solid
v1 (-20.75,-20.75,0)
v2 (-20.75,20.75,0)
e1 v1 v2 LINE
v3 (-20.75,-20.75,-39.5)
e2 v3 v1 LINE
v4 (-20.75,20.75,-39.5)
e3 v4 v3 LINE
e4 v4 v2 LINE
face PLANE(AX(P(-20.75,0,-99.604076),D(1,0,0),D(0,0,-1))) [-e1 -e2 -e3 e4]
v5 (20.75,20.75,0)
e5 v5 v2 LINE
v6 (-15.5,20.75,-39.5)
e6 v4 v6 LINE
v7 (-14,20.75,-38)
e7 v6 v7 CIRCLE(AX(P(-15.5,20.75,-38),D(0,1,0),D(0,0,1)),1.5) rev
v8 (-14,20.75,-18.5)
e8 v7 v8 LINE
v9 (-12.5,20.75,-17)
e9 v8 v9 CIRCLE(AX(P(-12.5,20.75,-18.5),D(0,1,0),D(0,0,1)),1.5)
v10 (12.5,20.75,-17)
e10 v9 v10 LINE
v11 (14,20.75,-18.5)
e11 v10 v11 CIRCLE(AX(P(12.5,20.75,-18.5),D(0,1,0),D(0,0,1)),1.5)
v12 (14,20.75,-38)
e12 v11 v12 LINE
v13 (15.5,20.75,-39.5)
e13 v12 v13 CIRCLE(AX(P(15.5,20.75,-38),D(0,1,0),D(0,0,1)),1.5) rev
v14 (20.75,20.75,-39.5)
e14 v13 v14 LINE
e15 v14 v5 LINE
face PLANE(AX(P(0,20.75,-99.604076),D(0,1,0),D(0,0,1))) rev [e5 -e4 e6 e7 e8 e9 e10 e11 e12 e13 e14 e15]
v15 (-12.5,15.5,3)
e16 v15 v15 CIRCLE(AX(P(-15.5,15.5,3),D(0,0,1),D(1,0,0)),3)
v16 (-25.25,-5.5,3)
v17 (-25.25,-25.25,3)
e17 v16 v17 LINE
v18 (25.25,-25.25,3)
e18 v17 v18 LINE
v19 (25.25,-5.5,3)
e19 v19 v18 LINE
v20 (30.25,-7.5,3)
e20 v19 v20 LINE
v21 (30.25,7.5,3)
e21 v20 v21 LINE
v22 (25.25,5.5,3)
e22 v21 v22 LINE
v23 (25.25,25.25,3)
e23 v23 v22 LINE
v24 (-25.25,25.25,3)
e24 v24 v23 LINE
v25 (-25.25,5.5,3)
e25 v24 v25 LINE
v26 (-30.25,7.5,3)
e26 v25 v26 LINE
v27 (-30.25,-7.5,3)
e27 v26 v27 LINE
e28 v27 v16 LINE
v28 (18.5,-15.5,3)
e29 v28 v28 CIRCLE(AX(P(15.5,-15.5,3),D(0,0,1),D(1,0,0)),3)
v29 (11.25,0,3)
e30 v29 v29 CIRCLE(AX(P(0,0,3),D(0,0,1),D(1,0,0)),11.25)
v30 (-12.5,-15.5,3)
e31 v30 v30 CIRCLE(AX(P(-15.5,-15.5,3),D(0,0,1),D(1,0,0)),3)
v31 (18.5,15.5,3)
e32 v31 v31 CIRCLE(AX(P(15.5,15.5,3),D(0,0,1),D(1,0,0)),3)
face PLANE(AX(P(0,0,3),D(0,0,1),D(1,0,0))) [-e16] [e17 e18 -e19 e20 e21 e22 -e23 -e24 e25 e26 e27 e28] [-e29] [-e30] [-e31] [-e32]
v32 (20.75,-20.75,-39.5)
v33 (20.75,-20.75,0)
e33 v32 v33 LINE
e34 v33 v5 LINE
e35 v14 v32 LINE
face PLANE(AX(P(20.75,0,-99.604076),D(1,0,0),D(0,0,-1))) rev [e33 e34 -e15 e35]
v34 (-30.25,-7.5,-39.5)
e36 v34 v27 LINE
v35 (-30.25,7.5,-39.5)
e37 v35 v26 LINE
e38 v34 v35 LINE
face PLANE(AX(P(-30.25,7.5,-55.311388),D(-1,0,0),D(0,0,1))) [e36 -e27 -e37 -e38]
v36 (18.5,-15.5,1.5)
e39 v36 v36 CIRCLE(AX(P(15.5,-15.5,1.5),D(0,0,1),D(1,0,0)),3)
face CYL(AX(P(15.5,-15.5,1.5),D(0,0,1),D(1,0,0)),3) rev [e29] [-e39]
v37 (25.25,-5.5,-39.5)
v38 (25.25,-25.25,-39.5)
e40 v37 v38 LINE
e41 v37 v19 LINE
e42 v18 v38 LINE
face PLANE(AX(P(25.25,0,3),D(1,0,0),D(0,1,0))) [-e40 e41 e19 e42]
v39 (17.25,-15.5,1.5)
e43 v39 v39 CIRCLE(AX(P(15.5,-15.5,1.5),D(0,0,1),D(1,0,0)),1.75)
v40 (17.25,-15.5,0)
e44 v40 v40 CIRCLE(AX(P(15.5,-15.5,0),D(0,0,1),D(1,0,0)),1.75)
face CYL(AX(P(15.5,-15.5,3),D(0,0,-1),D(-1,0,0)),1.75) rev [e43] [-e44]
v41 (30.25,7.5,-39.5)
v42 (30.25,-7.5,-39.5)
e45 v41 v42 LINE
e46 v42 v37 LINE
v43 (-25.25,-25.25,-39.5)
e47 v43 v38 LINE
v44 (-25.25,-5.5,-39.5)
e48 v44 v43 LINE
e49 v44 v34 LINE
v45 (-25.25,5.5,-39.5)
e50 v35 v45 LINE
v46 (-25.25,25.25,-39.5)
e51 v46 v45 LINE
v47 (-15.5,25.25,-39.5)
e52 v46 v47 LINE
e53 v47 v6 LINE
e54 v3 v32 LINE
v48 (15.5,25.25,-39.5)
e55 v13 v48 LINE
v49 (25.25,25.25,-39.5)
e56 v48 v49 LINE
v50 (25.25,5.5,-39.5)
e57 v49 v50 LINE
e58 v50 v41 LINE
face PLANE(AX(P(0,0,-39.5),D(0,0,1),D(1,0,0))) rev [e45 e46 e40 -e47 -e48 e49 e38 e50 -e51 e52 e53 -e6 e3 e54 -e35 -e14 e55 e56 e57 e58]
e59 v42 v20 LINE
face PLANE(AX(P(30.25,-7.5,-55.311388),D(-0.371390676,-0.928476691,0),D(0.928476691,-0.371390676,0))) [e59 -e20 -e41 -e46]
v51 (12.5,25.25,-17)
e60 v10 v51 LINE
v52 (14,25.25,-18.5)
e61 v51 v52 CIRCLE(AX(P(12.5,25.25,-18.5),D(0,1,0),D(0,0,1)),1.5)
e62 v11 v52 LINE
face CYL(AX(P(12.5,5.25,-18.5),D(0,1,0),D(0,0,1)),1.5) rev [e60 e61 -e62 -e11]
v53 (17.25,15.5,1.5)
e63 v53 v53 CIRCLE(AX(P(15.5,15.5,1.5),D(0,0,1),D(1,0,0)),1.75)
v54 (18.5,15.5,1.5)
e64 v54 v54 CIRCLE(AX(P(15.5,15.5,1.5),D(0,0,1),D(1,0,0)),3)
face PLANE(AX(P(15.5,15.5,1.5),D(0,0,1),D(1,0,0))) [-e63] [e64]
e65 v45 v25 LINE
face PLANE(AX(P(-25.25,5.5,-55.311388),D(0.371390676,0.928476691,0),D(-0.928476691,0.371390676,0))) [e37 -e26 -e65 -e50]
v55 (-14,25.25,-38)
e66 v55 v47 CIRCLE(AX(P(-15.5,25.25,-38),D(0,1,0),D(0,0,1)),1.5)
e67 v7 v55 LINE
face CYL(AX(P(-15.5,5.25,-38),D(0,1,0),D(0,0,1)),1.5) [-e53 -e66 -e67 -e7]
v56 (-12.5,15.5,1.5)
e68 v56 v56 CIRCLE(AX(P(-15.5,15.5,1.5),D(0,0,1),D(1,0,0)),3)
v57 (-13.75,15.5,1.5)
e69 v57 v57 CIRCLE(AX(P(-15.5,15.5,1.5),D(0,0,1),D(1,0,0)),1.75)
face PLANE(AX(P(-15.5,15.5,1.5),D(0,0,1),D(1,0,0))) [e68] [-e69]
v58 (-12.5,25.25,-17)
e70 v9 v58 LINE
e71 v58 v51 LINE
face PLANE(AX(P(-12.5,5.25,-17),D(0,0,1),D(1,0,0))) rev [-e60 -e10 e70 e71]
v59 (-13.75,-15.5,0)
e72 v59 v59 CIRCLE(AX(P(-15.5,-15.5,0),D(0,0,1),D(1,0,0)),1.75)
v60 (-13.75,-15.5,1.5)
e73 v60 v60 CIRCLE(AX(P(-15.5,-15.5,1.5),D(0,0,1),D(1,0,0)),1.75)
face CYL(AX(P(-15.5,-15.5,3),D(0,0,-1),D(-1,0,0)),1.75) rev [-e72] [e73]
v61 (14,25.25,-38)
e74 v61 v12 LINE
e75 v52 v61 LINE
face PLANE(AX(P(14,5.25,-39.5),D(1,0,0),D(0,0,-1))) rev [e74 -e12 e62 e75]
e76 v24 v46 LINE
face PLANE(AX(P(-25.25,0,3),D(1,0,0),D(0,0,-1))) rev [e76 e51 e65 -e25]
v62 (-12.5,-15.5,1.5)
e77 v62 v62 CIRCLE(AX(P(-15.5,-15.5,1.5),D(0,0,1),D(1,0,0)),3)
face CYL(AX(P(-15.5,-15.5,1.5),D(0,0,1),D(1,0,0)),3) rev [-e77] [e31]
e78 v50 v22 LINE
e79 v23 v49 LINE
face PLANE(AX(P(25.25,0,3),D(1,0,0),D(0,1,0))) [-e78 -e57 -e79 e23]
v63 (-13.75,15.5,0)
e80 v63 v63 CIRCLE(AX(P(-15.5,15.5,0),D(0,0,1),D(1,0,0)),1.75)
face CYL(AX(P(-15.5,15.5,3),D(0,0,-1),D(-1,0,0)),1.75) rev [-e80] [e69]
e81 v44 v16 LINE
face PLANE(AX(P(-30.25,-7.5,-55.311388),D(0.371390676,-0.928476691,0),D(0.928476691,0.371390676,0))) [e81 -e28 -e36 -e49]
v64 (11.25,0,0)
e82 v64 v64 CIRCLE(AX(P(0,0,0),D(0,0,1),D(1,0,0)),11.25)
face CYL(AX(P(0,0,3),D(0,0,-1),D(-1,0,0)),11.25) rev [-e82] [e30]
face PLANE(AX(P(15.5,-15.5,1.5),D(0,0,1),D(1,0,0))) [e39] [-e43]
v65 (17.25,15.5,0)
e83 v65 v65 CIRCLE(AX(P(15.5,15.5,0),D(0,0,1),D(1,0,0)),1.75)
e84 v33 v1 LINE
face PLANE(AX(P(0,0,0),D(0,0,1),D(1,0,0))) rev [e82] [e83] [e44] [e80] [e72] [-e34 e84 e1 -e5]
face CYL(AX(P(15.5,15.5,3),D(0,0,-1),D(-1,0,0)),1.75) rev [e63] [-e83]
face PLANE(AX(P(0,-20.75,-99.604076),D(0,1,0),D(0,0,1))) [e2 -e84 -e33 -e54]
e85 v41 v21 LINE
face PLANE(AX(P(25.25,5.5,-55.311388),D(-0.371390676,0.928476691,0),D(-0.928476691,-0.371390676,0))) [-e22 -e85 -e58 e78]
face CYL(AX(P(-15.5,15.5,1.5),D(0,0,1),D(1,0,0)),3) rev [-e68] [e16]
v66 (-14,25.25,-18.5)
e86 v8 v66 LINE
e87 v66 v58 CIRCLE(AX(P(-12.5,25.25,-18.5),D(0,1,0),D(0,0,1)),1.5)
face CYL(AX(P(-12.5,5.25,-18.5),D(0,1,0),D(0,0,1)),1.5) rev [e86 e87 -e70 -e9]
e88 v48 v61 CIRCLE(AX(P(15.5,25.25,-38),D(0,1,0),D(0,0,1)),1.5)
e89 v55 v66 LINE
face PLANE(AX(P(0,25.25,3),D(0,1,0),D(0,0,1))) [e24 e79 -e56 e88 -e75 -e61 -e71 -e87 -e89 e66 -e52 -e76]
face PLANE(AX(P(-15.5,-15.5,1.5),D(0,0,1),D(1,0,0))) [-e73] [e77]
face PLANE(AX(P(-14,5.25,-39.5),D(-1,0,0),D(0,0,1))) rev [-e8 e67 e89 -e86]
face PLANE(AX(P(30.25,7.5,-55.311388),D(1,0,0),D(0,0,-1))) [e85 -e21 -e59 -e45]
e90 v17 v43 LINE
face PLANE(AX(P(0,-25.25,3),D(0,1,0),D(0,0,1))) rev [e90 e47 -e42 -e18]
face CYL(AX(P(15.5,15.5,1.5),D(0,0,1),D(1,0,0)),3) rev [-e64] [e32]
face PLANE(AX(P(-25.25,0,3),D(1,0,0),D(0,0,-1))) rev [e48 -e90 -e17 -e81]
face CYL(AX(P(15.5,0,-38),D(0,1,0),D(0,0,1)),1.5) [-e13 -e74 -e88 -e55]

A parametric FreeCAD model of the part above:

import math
import FreeCAD as App
import Part
import Sketcher


def edges_at(feature, points):
    """Names of the edges that pass closest to the given points."""
    edges = feature.Shape.Edges
    near = lambda p: min(range(len(edges)), key=lambda i: edges[i].distToShape(Part.Vertex(*p))[0])
    return sorted({f"Edge{near(p) + 1}" for p in points})

doc = App.newDocument("Part")
body = doc.addObject("PartDesign::Body", "Body")

sketch1 = body.newObject("Sketcher::SketchObject", "Sketch")
sketch1.AttachmentSupport = (doc.getObject("XY_Plane"), [""])
sketch1.MapMode = "FlatFace"
sketch1.addGeometry(Part.LineSegment(App.Vector(-25.25, 25.25, 0), App.Vector(-25.25, -25.25, 0)), False)
sketch1.addGeometry(Part.LineSegment(App.Vector(-25.25, -25.25, 0), App.Vector(25.25, -25.25, 0)), False)
sketch1.addGeometry(Part.LineSegment(App.Vector(25.25, -25.25, 0), App.Vector(25.25, 25.25, 0)), False)
sketch1.addGeometry(Part.LineSegment(App.Vector(25.25, 25.25, 0), App.Vector(-25.25, 25.25, 0)), False)
sketch1.addGeometry(Part.Circle(App.Vector(-15.5, -15.5, 0), App.Vector(0, 0, 1), 1.75), False)
sketch1.addGeometry(Part.Circle(App.Vector(15.5, -15.5, 0), App.Vector(0, 0, 1), 1.75), False)
sketch1.addGeometry(Part.Circle(App.Vector(-15.5, 15.5, 0), App.Vector(0, 0, 1), 1.75), False)
sketch1.addGeometry(Part.Circle(App.Vector(0, 0, 0), App.Vector(0, 0, 1), 11.25), False)
sketch1.addGeometry(Part.Circle(App.Vector(15.5, 15.5, 0), App.Vector(0, 0, 1), 1.75), False)
sketch1.addConstraint(Sketcher.Constraint("Coincident", 0, 2, 1, 1))
sketch1.addConstraint(Sketcher.Constraint("Coincident", 1, 2, 2, 1))
sketch1.addConstraint(Sketcher.Constraint("Coincident", 2, 2, 3, 1))
sketch1.addConstraint(Sketcher.Constraint("Coincident", 3, 2, 0, 1))
sketch1.addConstraint(Sketcher.Constraint("Vertical", 0))
sketch1.addConstraint(Sketcher.Constraint("Horizontal", 1))
sketch1.addConstraint(Sketcher.Constraint("Vertical", 2))
sketch1.addConstraint(Sketcher.Constraint("Horizontal", 3))
sketch1.addConstraint(Sketcher.Constraint("Coincident", 7, 3, -1, 1))
sketch1.addConstraint(Sketcher.Constraint("Equal", 4, 5))
sketch1.addConstraint(Sketcher.Constraint("Equal", 5, 6))
sketch1.addConstraint(Sketcher.Constraint("Equal", 6, 8))
sketch1.addConstraint(Sketcher.Constraint("Symmetric", 5, 3, 6, 3, -1, 1))
sketch1.addConstraint(Sketcher.Constraint("Symmetric", 4, 3, 8, 3, -1, 1))
sketch1.addConstraint(Sketcher.Constraint("Symmetric", 0, 2, 2, 2, -1, 1))
sketch1.addConstraint(Sketcher.Constraint("Symmetric", 4, 3, 5, 3, -2))
sketch1.addConstraint(Sketcher.Constraint("Equal", 3, 0))
sketch1.addConstraint(Sketcher.Constraint("Diameter", 4, 3.5))
sketch1.addConstraint(Sketcher.Constraint("Diameter", 7, 22.5))
sketch1.addConstraint(Sketcher.Constraint("DistanceX", 1, 1, 1, 2, 50.5))
sketch1.addConstraint(Sketcher.Constraint("DistanceX", 4, 3, 5, 3, 31.0))
sketch1.addConstraint(Sketcher.Constraint("DistanceY", 4, 3, 6, 3, 31.0))
pad1 = body.newObject("PartDesign::Pad", "Pad")
pad1.Profile = sketch1
pad1.Length = 3

sketch2 = body.newObject("Sketcher::SketchObject", "Sketch001")
sketch2.AttachmentSupport = (doc.getObject("XY_Plane"), [""])
sketch2.MapMode = "FlatFace"
sketch2.addGeometry(Part.LineSegment(App.Vector(-25.25, 25.25, 0), App.Vector(-25.25, -25.25, 0)), False)
sketch2.addGeometry(Part.LineSegment(App.Vector(-25.25, -25.25, 0), App.Vector(25.25, -25.25, 0)), False)
sketch2.addGeometry(Part.LineSegment(App.Vector(25.25, -25.25, 0), App.Vector(25.25, 25.25, 0)), False)
sketch2.addGeometry(Part.LineSegment(App.Vector(25.25, 25.25, 0), App.Vector(-25.25, 25.25, 0)), False)
sketch2.addGeometry(Part.LineSegment(App.Vector(21.25, -21.25, 0), App.Vector(-21.25, -21.25, 0)), False)
sketch2.addGeometry(Part.LineSegment(App.Vector(-21.25, -21.25, 0), App.Vector(-21.25, 21.25, 0)), False)
sketch2.addGeometry(Part.LineSegment(App.Vector(-21.25, 21.25, 0), App.Vector(21.25, 21.25, 0)), False)
sketch2.addGeometry(Part.LineSegment(App.Vector(21.25, 21.25, 0), App.Vector(21.25, -21.25, 0)), False)
sketch2.addConstraint(Sketcher.Constraint("Coincident", 0, 2, 1, 1))
sketch2.addConstraint(Sketcher.Constraint("Coincident", 1, 2, 2, 1))
sketch2.addConstraint(Sketcher.Constraint("Coincident", 2, 2, 3, 1))
sketch2.addConstraint(Sketcher.Constraint("Coincident", 3, 2, 0, 1))
sketch2.addConstraint(Sketcher.Constraint("Coincident", 4, 2, 5, 1))
sketch2.addConstraint(Sketcher.Constraint("Coincident", 5, 2, 6, 1))
sketch2.addConstraint(Sketcher.Constraint("Coincident", 6, 2, 7, 1))
sketch2.addConstraint(Sketcher.Constraint("Coincident", 7, 2, 4, 1))
sketch2.addConstraint(Sketcher.Constraint("Vertical", 0))
sketch2.addConstraint(Sketcher.Constraint("Horizontal", 1))
sketch2.addConstraint(Sketcher.Constraint("Vertical", 2))
sketch2.addConstraint(Sketcher.Constraint("Horizontal", 3))
sketch2.addConstraint(Sketcher.Constraint("Horizontal", 4))
sketch2.addConstraint(Sketcher.Constraint("Vertical", 5))
sketch2.addConstraint(Sketcher.Constraint("Horizontal", 6))
sketch2.addConstraint(Sketcher.Constraint("Vertical", 7))
sketch2.addConstraint(Sketcher.Constraint("Symmetric", 0, 2, 2, 2, -1, 1))
sketch2.addConstraint(Sketcher.Constraint("Symmetric", 4, 2, 6, 2, -1, 1))
sketch2.addConstraint(Sketcher.Constraint("Equal", 3, 0))
sketch2.addConstraint(Sketcher.Constraint("Equal", 6, 5))
sketch2.addConstraint(Sketcher.Constraint("DistanceX", 1, 1, 1, 2, 50.5))
sketch2.addConstraint(Sketcher.Constraint("DistanceX", 4, 2, 4, 1, 42.5))
pad2 = body.newObject("PartDesign::Pad", "Pad001")
pad2.Profile = sketch2
pad2.Length = 39.5
pad2.Reversed = True

sketch3 = body.newObject("Sketcher::SketchObject", "Sketch002")
sketch3.AttachmentSupport = (doc.getObject("XY_Plane"), [""])
sketch3.MapMode = "FlatFace"
sketch3.addGeometry(Part.LineSegment(App.Vector(21.25, 21.25, 0), App.Vector(21.25, -21.25, 0)), False)
sketch3.addGeometry(Part.LineSegment(App.Vector(21.25, -21.25, 0), App.Vector(-21.25, -21.25, 0)), False)
sketch3.addGeometry(Part.LineSegment(App.Vector(-21.25, -21.25, 0), App.Vector(-21.25, 21.25, 0)), False)
sketch3.addGeometry(Part.LineSegment(App.Vector(-21.25, 21.25, 0), App.Vector(21.25, 21.25, 0)), False)
sketch3.addGeometry(Part.LineSegment(App.Vector(-20.75, -20.75, 0), App.Vector(20.75, -20.75, 0)), False)
sketch3.addGeometry(Part.LineSegment(App.Vector(20.75, -20.75, 0), App.Vector(20.75, 20.75, 0)), False)
sketch3.addGeometry(Part.LineSegment(App.Vector(20.75, 20.75, 0), App.Vector(-20.75, 20.75, 0)), False)
sketch3.addGeometry(Part.LineSegment(App.Vector(-20.75, 20.75, 0), App.Vector(-20.75, -20.75, 0)), False)
sketch3.addConstraint(Sketcher.Constraint("Coincident", 0, 2, 1, 1))
sketch3.addConstraint(Sketcher.Constraint("Coincident", 1, 2, 2, 1))
sketch3.addConstraint(Sketcher.Constraint("Coincident", 2, 2, 3, 1))
sketch3.addConstraint(Sketcher.Constraint("Coincident", 3, 2, 0, 1))
sketch3.addConstraint(Sketcher.Constraint("Coincident", 4, 2, 5, 1))
sketch3.addConstraint(Sketcher.Constraint("Coincident", 5, 2, 6, 1))
sketch3.addConstraint(Sketcher.Constraint("Coincident", 6, 2, 7, 1))
sketch3.addConstraint(Sketcher.Constraint("Coincident", 7, 2, 4, 1))
sketch3.addConstraint(Sketcher.Constraint("Vertical", 0))
sketch3.addConstraint(Sketcher.Constraint("Horizontal", 1))
sketch3.addConstraint(Sketcher.Constraint("Vertical", 2))
sketch3.addConstraint(Sketcher.Constraint("Horizontal", 3))
sketch3.addConstraint(Sketcher.Constraint("Horizontal", 4))
sketch3.addConstraint(Sketcher.Constraint("Vertical", 5))
sketch3.addConstraint(Sketcher.Constraint("Horizontal", 6))
sketch3.addConstraint(Sketcher.Constraint("Vertical", 7))
sketch3.addConstraint(Sketcher.Constraint("Symmetric", 0, 2, 2, 2, -1, 1))
sketch3.addConstraint(Sketcher.Constraint("Symmetric", 4, 2, 6, 2, -1, 1))
sketch3.addConstraint(Sketcher.Constraint("Equal", 3, 0))
sketch3.addConstraint(Sketcher.Constraint("Equal", 6, 5))
sketch3.addConstraint(Sketcher.Constraint("DistanceX", 1, 2, 1, 1, 42.5))
sketch3.addConstraint(Sketcher.Constraint("DistanceX", 4, 1, 4, 2, 41.5))
pad3 = body.newObject("PartDesign::Pad", "Pad002")
pad3.Profile = sketch3
pad3.Length = 39.5
pad3.Reversed = True

sketch4 = body.newObject("Sketcher::SketchObject", "Sketch003")
sketch4.AttachmentSupport = (doc.getObject("XZ_Plane"), [""])
sketch4.MapMode = "FlatFace"
sketch4.AttachmentOffset = App.Placement(App.Vector(0, 0, -25.25), App.Rotation())
sketch4.addGeometry(Part.LineSegment(App.Vector(14, -39.5, 0), App.Vector(-14, -39.5, 0)), False)
sketch4.addGeometry(Part.LineSegment(App.Vector(-14, -39.5, 0), App.Vector(-14, -18.5, 0)), False)
sketch4.addGeometry(Part.ArcOfCircle(Part.Circle(App.Vector(-12.5, -18.5, 0), App.Vector(0, 0, 1), 1.5), math.radians(90), math.radians(180)), False)
sketch4.addGeometry(Part.LineSegment(App.Vector(-12.5, -17, 0), App.Vector(12.5, -17, 0)), False)
sketch4.addGeometry(Part.ArcOfCircle(Part.Circle(App.Vector(12.5, -18.5, 0), App.Vector(0, 0, 1), 1.5), math.radians(0), math.radians(90)), False)
sketch4.addGeometry(Part.LineSegment(App.Vector(14, -18.5, 0), App.Vector(14, -39.5, 0)), False)
sketch4.addConstraint(Sketcher.Constraint("Coincident", 0, 2, 1, 1))
sketch4.addConstraint(Sketcher.Constraint("Tangent", 1, 2, 2, 2))
sketch4.addConstraint(Sketcher.Constraint("Tangent", 2, 1, 3, 1))
sketch4.addConstraint(Sketcher.Constraint("Tangent", 3, 2, 4, 2))
sketch4.addConstraint(Sketcher.Constraint("Tangent", 4, 1, 5, 1))
sketch4.addConstraint(Sketcher.Constraint("Coincident", 5, 2, 0, 1))
sketch4.addConstraint(Sketcher.Constraint("Horizontal", 0))
sketch4.addConstraint(Sketcher.Constraint("Vertical", 1))
sketch4.addConstraint(Sketcher.Constraint("Horizontal", 3))
sketch4.addConstraint(Sketcher.Constraint("Vertical", 5))
sketch4.addConstraint(Sketcher.Constraint("Equal", 2, 4))
sketch4.addConstraint(Sketcher.Constraint("Radius", 2, 1.5))
sketch4.addConstraint(Sketcher.Constraint("DistanceX", 0, 2, 0, 1, 28.0))
sketch4.addConstraint(Sketcher.Constraint("DistanceY", 1, 1, 1, 2, 21.0))
sketch4.addConstraint(Sketcher.Constraint("DistanceX", 0, 2, -1, 1, 14.0))
sketch4.addConstraint(Sketcher.Constraint("DistanceY", 2, 1, -1, 1, 17.0))
pocket1 = body.newObject("PartDesign::Pocket", "Pocket")
pocket1.Profile = sketch4
pocket1.Length = 20
pocket1.Reversed = True
doc.recompute()

fillet = body.newObject("PartDesign::Fillet", "Fillet")
fillet.Base = (pocket1, edges_at(pocket1, [(-14, 23, -39.5), (14, 23, -39.5)]))
fillet.Radius = 1.5

sketch5 = body.newObject("Sketcher::SketchObject", "Sketch004")
sketch5.AttachmentSupport = (doc.getObject("XY_Plane"), [""])
sketch5.MapMode = "FlatFace"
sketch5.AttachmentOffset = App.Placement(App.Vector(0, 0, 3), App.Rotation())
sketch5.addGeometry(Part.Circle(App.Vector(15.5, 15.5, 0), App.Vector(0, 0, 1), 3), False)
sketch5.addGeometry(Part.Circle(App.Vector(15.5, -15.5, 0), App.Vector(0, 0, 1), 3), False)
sketch5.addGeometry(Part.Circle(App.Vector(-15.5, 15.5, 0), App.Vector(0, 0, 1), 3), False)
sketch5.addGeometry(Part.Circle(App.Vector(-15.5, -15.5, 0), App.Vector(0, 0, 1), 3), False)
sketch5.addConstraint(Sketcher.Constraint("Equal", 0, 1))
sketch5.addConstraint(Sketcher.Constraint("Equal", 1, 2))
sketch5.addConstraint(Sketcher.Constraint("Equal", 2, 3))
sketch5.addConstraint(Sketcher.Constraint("Symmetric", 1, 3, 2, 3, -1, 1))
sketch5.addConstraint(Sketcher.Constraint("Symmetric", 0, 3, 3, 3, -1, 1))
sketch5.addConstraint(Sketcher.Constraint("Symmetric", 0, 3, 2, 3, -2))
sketch5.addConstraint(Sketcher.Constraint("Diameter", 0, 6.0))
sketch5.addConstraint(Sketcher.Constraint("DistanceY", 1, 3, 0, 3, 31.0))
sketch5.addConstraint(Sketcher.Constraint("DistanceX", 2, 3, 0, 3, 31.0))
pocket2 = body.newObject("PartDesign::Pocket", "Pocket001")
pocket2.Profile = sketch5
pocket2.Length = 1.5

sketch6 = body.newObject("Sketcher::SketchObject", "Sketch005")
sketch6.AttachmentSupport = (doc.getObject("XY_Plane"), [""])
sketch6.MapMode = "FlatFace"
sketch6.AttachmentOffset = App.Placement(App.Vector(0, 0, 3), App.Rotation())
sketch6.addGeometry(Part.LineSegment(App.Vector(30.25, 7.5, 0), App.Vector(25.25, 5.5, 0)), False)
sketch6.addGeometry(Part.LineSegment(App.Vector(25.25, 5.5, 0), App.Vector(25.25, -5.5, 0)), False)
sketch6.addGeometry(Part.LineSegment(App.Vector(25.25, -5.5, 0), App.Vector(30.25, -7.5, 0)), False)
sketch6.addGeometry(Part.LineSegment(App.Vector(30.25, -7.5, 0), App.Vector(30.25, 7.5, 0)), False)
sketch6.addGeometry(Part.LineSegment(App.Vector(-30.25, -7.5, 0), App.Vector(-25.25, -5.5, 0)), False)
sketch6.addGeometry(Part.LineSegment(App.Vector(-25.25, -5.5, 0), App.Vector(-25.25, 5.5, 0)), False)
sketch6.addGeometry(Part.LineSegment(App.Vector(-25.25, 5.5, 0), App.Vector(-30.25, 7.5, 0)), False)
sketch6.addGeometry(Part.LineSegment(App.Vector(-30.25, 7.5, 0), App.Vector(-30.25, -7.5, 0)), False)
sketch6.addConstraint(Sketcher.Constraint("Coincident", 0, 2, 1, 1))
sketch6.addConstraint(Sketcher.Constraint("Coincident", 1, 2, 2, 1))
sketch6.addConstraint(Sketcher.Constraint("Coincident", 2, 2, 3, 1))
sketch6.addConstraint(Sketcher.Constraint("Coincident", 3, 2, 0, 1))
sketch6.addConstraint(Sketcher.Constraint("Coincident", 4, 2, 5, 1))
sketch6.addConstraint(Sketcher.Constraint("Coincident", 5, 2, 6, 1))
sketch6.addConstraint(Sketcher.Constraint("Coincident", 6, 2, 7, 1))
sketch6.addConstraint(Sketcher.Constraint("Coincident", 7, 2, 4, 1))
sketch6.addConstraint(Sketcher.Constraint("Vertical", 1))
sketch6.addConstraint(Sketcher.Constraint("Vertical", 3))
sketch6.addConstraint(Sketcher.Constraint("Vertical", 5))
sketch6.addConstraint(Sketcher.Constraint("Vertical", 7))
sketch6.addConstraint(Sketcher.Constraint("Symmetric", 0, 2, 4, 2, -1, 1))
sketch6.addConstraint(Sketcher.Constraint("Symmetric", 2, 2, 6, 2, -1, 1))
sketch6.addConstraint(Sketcher.Constraint("Parallel", 0, 4))
sketch6.addConstraint(Sketcher.Constraint("Parallel", 2, 6))
sketch6.addConstraint(Sketcher.Constraint("Horizontal", 1, 2, 4, 2))
sketch6.addConstraint(Sketcher.Constraint("Horizontal", 3, 2, 6, 2))
sketch6.addConstraint(Sketcher.Constraint("DistanceY", 1, 2, 1, 1, 11.0))
sketch6.addConstraint(Sketcher.Constraint("DistanceY", 3, 1, 3, 2, 15.0))
sketch6.addConstraint(Sketcher.Constraint("DistanceX", 1, 2, 2, 2, 5.0))
sketch6.addConstraint(Sketcher.Constraint("DistanceX", 4, 2, 1, 2, 50.5))
pad4 = body.newObject("PartDesign::Pad", "Pad003")
pad4.Profile = sketch6
pad4.Length = 42.5
pad4.Reversed = True

doc.recompute()
